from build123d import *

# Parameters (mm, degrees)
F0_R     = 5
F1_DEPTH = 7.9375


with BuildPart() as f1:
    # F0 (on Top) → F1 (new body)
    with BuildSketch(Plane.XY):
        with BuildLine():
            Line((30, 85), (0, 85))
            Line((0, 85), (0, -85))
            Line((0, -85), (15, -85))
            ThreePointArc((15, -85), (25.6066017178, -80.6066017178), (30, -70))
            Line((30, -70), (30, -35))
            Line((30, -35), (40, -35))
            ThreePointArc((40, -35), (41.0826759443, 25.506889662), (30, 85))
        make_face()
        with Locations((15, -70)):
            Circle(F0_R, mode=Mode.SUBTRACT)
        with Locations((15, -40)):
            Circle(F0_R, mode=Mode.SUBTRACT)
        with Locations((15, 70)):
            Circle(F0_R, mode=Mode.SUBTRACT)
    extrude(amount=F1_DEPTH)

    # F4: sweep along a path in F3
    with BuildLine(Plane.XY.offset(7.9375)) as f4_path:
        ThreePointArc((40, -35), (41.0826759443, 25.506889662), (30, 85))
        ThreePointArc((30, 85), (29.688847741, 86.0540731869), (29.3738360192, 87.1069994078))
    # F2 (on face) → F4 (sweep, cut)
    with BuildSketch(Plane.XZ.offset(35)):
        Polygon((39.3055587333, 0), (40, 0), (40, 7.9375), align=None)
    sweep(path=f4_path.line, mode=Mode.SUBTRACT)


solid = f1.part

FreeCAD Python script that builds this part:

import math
import FreeCAD as App
import Part
import Sketcher
Q = App.Units.Quantity

doc = App.newDocument("Part")
params = doc.addObject("Spreadsheet::Sheet", "Params")
for row, (alias, value) in enumerate([
    ("sketch1_diameter", "10 mm"),
    ("sketch1_radius", "15 mm"),
    ("sketch1_radius2", "300 mm"),
    ("sketch1_width", "30 mm"),
    ("sketch1_width2", "10 mm"),
    ("pad1_length", "7.9375 mm"),
    ("sketch3_radius", "300 mm"),
], start=1):
    params.set(f"A{row}", alias)
    params.set(f"B{row}", "=" + value)
    params.setAlias(f"B{row}", alias)

body = doc.addObject("PartDesign::Body", "Body")

# Sketch on XY plane
sketch1 = doc.addObject("Sketcher::SketchObject", "Sketch")
body.addObject(sketch1)
sketch1.AttachmentSupport = (doc.XY_Plane, [""])
sketch1.MapMode = "FlatFace"
sketch1.addGeometry(Part.LineSegment(App.Vector(30, 85, 0), App.Vector(0, 85, 0)), False)
sketch1.addGeometry(Part.LineSegment(App.Vector(0, 85, 0), App.Vector(0, -85, 0)), False)
sketch1.addGeometry(Part.LineSegment(App.Vector(0, -85, 0), App.Vector(15, -85, 0)), False)
sketch1.addGeometry(Part.ArcOfCircle(Part.Circle(App.Vector(15, -70, 0), App.Vector(0, 0, 1), 15), math.radians(-90), math.radians(0)), False)
sketch1.addGeometry(Part.LineSegment(App.Vector(30, -70, 0), App.Vector(30, -35, 0)), False)
sketch1.addGeometry(Part.LineSegment(App.Vector(30, -35, 0), App.Vector(40, -35, 0)), False)
sketch1.addGeometry(Part.ArcOfCircle(Part.Circle(App.Vector(-258, 1, 0), App.Vector(0, 0, 1), 300), math.radians(-7), math.radians(16)), False)
sketch1.addGeometry(Part.Circle(App.Vector(15, -70, 0), App.Vector(0, 0, 1), 5), False)
sketch1.addGeometry(Part.Circle(App.Vector(15, -40, 0), App.Vector(0, 0, 1), 5), False)
sketch1.addGeometry(Part.Circle(App.Vector(15, 70, 0), App.Vector(0, 0, 1), 5), False)
sketch1.addConstraint(Sketcher.Constraint("Coincident", 0, 2, 1, 1))
sketch1.addConstraint(Sketcher.Constraint("Coincident", 1, 2, 2, 1))
sketch1.addConstraint(Sketcher.Constraint("Tangent", 2, 2, 3, 1))
sketch1.addConstraint(Sketcher.Constraint("Tangent", 3, 2, 4, 1))
sketch1.addConstraint(Sketcher.Constraint("Coincident", 4, 2, 5, 1))
sketch1.addConstraint(Sketcher.Constraint("Coincident", 5, 2, 6, 1))
sketch1.addConstraint(Sketcher.Constraint("Coincident", 6, 2, 0, 1))
sketch1.addConstraint(Sketcher.Constraint("Horizontal", 0))
sketch1.addConstraint(Sketcher.Constraint("Vertical", 1))
sketch1.addConstraint(Sketcher.Constraint("Horizontal", 2))
sketch1.addConstraint(Sketcher.Constraint("Vertical", 4))
sketch1.addConstraint(Sketcher.Constraint("Horizontal", 5))
sketch1.addConstraint(Sketcher.Constraint("Coincident", 7, 3, 3, 3))
sketch1.addConstraint(Sketcher.Constraint("Equal", 7, 8))
sketch1.addConstraint(Sketcher.Constraint("Equal", 8, 9))
sketch1.addConstraint(Sketcher.Constraint("Symmetric", 0, 2, 1, 2, -1, 1))
sketch1.addConstraint(Sketcher.Constraint("Symmetric", 3, 3, 9, 3, -1))
sketch1.addConstraint(Sketcher.Constraint("Vertical", 7, 3, 8, 3))
sketch1.addConstraint(Sketcher.Constraint("Vertical", 4, 2, 6, 2))
sketch1.addConstraint(Sketcher.Constraint("Diameter", 7, Q("10 mm")))
sketch1.addConstraint(Sketcher.Constraint("Radius", 3, Q("15 mm")))
sketch1.addConstraint(Sketcher.Constraint("Radius", 6, Q("300 mm")))
sketch1.addConstraint(Sketcher.Constraint("DistanceX", 0, 2, 0, 1, Q("30 mm")))
sketch1.addConstraint(Sketcher.Constraint("DistanceX", 5, 1, 5, 2, Q("10 mm")))
sketch1.addConstraint(Sketcher.Constraint("DistanceY", 1, 2, 1, 1, Q("170 mm")))
sketch1.addConstraint(Sketcher.Constraint("DistanceY", 4, 1, 4, 2, Q("35 mm")))
sketch1.addConstraint(Sketcher.Constraint("DistanceY", 8, 3, -1, 1, Q("40 mm")))
sketch1.setExpression("Constraints[19]", "Params.sketch1_diameter")
sketch1.setExpression("Constraints[20]", "Params.sketch1_radius")
sketch1.setExpression("Constraints[21]", "Params.sketch1_radius2")
sketch1.setExpression("Constraints[22]", "Params.sketch1_width")
sketch1.setExpression("Constraints[23]", "Params.sketch1_width2")
pad1 = doc.addObject("PartDesign::Pad", "Pad")
body.addObject(pad1)
pad1.Profile = sketch1
pad1.setExpression("Length", "Params.pad1_length")

# Sketch on XZ plane
sketch2 = doc.addObject("Sketcher::SketchObject", "Sketch001")
body.addObject(sketch2)
sketch2.AttachmentSupport = (doc.XZ_Plane, [""])
sketch2.MapMode = "FlatFace"
sketch2.AttachmentOffset = App.Placement(App.Vector(0, 0, 35), App.Rotation())
sketch2.addGeometry(Part.LineSegment(App.Vector(39.3, 0, 0), App.Vector(40, 0, 0)), False)
sketch2.addGeometry(Part.LineSegment(App.Vector(40, 0, 0), App.Vector(40, 7.9, 0)), False)
sketch2.addGeometry(Part.LineSegment(App.Vector(40, 7.9, 0), App.Vector(39.3, 0, 0)), False)
sketch2.addConstraint(Sketcher.Constraint("Coincident", 0, 2, 1, 1))
sketch2.addConstraint(Sketcher.Constraint("Coincident", 1, 2, 2, 1))
sketch2.addConstraint(Sketcher.Constraint("Coincident", 2, 2, 0, 1))
sketch2.addConstraint(Sketcher.Constraint("Horizontal", 0))
sketch2.addConstraint(Sketcher.Constraint("Vertical", 1))
sketch2.addConstraint(Sketcher.Constraint("PointOnObject", 0, 2, -1))
sketch2.addConstraint(Sketcher.Constraint("Angle", 2, Q("-95 deg")))
sketch2.addConstraint(Sketcher.Constraint("DistanceX", -1, 1, 0, 2, Q("40 mm")))
sketch2.addConstraint(Sketcher.Constraint("DistanceY", 1, 1, 1, 2, Q("7.9375 mm")))

# Sketch on XY plane
sketch3 = doc.addObject("Sketcher::SketchObject", "Sketch002")
body.addObject(sketch3)
sketch3.AttachmentSupport = (doc.XY_Plane, [""])
sketch3.MapMode = "FlatFace"
sketch3.AttachmentOffset = App.Placement(App.Vector(0, 0, 7.9375), App.Rotation())
sketch3.addGeometry(Part.ArcOfCircle(Part.Circle(App.Vector(-257.9, 0.6, 0), App.Vector(0, 0, 1), 300), math.radians(-7), math.radians(16)), False)
sketch3.addGeometry(Part.ArcOfCircle(Part.Circle(App.Vector(-257.9, 0.6, 0), App.Vector(0, 0, 1), 300), math.radians(16.34), math.radians(16.76)), False)
sketch3.addConstraint(Sketcher.Constraint("Tangent", 0, 2, 1, 1))
sketch3.addConstraint(Sketcher.Constraint("Radius", 0, Q("300 mm")))
sketch3.addConstraint(Sketcher.Constraint("DistanceX", -1, 1, 0, 1, Q("40 mm")))
sketch3.addConstraint(Sketcher.Constraint("DistanceY", 0, 1, -1, 1, Q("35 mm")))
sketch3.addConstraint(Sketcher.Constraint("DistanceX", -1, 1, 0, 2, Q("30 mm")))
sketch3.addConstraint(Sketcher.Constraint("DistanceY", -1, 1, 0, 2, Q("85 mm")))
sketch3.addConstraint(Sketcher.Constraint("DistanceY", -1, 1, 1, 2, Q("87.106999 mm")))
sketch3.addConstraint(Sketcher.Constraint("Radius", 1, Q("300.000005 mm")))
sketch3.setExpression("Constraints[1]", "Params.sketch3_radius")
doc.recompute()

subtractivepipe = doc.addObject("PartDesign::SubtractivePipe", "SubtractivePipe")
body.addObject(subtractivepipe)
subtractivepipe.Profile = sketch2
subtractivepipe.Spine = (sketch3, ["Edge1", "Edge2"])

doc.recompute()
